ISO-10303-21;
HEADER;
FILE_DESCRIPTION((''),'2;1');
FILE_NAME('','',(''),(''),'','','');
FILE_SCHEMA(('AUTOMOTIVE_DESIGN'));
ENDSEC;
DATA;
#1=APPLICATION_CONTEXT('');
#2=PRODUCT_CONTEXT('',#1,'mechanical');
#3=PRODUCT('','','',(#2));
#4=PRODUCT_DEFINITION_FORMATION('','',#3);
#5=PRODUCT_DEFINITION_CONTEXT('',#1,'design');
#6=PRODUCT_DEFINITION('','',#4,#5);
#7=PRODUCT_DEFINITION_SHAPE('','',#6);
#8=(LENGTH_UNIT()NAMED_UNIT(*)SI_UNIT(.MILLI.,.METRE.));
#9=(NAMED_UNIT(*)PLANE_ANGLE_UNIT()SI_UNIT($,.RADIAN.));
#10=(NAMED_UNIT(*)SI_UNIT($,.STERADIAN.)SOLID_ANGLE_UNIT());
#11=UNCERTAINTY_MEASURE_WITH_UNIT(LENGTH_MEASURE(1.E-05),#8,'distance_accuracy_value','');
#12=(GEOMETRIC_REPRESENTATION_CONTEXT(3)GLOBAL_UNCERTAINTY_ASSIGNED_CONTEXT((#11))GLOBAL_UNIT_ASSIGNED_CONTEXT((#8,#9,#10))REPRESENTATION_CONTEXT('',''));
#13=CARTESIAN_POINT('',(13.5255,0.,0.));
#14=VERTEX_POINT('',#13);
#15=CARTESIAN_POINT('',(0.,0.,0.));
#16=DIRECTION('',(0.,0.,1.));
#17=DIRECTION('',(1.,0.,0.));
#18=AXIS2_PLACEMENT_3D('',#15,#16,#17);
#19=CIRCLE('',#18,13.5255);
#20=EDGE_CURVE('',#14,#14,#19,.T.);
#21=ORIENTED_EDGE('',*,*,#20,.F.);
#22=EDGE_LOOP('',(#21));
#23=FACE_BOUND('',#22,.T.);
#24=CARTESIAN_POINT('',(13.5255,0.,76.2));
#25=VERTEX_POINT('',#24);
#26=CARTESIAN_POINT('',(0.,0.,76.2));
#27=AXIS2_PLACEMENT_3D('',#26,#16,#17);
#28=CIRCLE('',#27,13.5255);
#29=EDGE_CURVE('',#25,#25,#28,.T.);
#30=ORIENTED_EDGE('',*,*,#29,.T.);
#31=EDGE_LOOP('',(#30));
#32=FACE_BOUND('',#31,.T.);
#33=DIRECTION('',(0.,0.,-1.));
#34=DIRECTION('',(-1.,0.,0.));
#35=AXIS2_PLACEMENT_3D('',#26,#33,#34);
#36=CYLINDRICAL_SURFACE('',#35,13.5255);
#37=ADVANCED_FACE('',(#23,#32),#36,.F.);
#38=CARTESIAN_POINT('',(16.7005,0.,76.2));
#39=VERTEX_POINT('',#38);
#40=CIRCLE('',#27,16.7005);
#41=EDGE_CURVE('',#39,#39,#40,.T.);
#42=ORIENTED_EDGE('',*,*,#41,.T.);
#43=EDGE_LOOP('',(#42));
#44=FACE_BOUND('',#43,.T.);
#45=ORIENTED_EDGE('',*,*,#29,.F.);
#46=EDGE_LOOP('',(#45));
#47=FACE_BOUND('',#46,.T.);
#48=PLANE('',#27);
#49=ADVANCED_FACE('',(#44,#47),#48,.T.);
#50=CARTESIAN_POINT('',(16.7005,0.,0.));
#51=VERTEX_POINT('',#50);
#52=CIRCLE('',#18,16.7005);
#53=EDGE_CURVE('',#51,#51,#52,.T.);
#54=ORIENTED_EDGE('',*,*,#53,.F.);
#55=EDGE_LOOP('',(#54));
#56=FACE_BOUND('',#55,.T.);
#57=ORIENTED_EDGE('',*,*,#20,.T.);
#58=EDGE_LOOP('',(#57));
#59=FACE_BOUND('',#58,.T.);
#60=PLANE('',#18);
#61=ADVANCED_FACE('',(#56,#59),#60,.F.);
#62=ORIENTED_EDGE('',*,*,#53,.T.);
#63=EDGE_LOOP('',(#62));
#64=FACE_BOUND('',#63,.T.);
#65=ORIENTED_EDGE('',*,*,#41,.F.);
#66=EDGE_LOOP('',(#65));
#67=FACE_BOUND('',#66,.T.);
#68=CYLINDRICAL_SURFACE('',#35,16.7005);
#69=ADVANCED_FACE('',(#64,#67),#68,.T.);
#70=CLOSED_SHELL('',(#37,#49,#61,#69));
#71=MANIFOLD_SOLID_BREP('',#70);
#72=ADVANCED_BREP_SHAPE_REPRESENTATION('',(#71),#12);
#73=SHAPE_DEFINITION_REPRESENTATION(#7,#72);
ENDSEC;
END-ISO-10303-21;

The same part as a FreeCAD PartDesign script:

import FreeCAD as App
import Part
import Sketcher

V = App.Vector
Q = App.Units.Quantity

doc = App.newDocument("Part")
body = doc.addObject("PartDesign::Body", "Body")

# Sketch on XY plane
sketch1 = body.newObject("Sketcher::SketchObject", "Sketch")
sketch1.AttachmentSupport = (doc.getObject("XY_Plane"), [""])
sketch1.MapMode = "FlatFace"
sketch1.addGeometry(Part.Circle(V(0, 0, 0), V(0, 0, 1), 17), False)
sketch1.addGeometry(Part.Circle(V(0, 0, 0), V(0, 0, 1), 14), False)
sketch1.addConstraint(Sketcher.Constraint("Coincident", 0, 3, -1, 1))
sketch1.addConstraint(Sketcher.Constraint("Coincident", 1, 3, -1, 1))
sketch1.addConstraint(Sketcher.Constraint("Diameter", 0, Q("1.315 in")))
sketch1.addConstraint(Sketcher.Constraint("Diameter", 1, Q("1.065 in")))
pad1 = body.newObject("PartDesign::Pad", "Pad")
pad1.Profile = sketch1
pad1.Length = Q("3 in")

doc.recompute()
